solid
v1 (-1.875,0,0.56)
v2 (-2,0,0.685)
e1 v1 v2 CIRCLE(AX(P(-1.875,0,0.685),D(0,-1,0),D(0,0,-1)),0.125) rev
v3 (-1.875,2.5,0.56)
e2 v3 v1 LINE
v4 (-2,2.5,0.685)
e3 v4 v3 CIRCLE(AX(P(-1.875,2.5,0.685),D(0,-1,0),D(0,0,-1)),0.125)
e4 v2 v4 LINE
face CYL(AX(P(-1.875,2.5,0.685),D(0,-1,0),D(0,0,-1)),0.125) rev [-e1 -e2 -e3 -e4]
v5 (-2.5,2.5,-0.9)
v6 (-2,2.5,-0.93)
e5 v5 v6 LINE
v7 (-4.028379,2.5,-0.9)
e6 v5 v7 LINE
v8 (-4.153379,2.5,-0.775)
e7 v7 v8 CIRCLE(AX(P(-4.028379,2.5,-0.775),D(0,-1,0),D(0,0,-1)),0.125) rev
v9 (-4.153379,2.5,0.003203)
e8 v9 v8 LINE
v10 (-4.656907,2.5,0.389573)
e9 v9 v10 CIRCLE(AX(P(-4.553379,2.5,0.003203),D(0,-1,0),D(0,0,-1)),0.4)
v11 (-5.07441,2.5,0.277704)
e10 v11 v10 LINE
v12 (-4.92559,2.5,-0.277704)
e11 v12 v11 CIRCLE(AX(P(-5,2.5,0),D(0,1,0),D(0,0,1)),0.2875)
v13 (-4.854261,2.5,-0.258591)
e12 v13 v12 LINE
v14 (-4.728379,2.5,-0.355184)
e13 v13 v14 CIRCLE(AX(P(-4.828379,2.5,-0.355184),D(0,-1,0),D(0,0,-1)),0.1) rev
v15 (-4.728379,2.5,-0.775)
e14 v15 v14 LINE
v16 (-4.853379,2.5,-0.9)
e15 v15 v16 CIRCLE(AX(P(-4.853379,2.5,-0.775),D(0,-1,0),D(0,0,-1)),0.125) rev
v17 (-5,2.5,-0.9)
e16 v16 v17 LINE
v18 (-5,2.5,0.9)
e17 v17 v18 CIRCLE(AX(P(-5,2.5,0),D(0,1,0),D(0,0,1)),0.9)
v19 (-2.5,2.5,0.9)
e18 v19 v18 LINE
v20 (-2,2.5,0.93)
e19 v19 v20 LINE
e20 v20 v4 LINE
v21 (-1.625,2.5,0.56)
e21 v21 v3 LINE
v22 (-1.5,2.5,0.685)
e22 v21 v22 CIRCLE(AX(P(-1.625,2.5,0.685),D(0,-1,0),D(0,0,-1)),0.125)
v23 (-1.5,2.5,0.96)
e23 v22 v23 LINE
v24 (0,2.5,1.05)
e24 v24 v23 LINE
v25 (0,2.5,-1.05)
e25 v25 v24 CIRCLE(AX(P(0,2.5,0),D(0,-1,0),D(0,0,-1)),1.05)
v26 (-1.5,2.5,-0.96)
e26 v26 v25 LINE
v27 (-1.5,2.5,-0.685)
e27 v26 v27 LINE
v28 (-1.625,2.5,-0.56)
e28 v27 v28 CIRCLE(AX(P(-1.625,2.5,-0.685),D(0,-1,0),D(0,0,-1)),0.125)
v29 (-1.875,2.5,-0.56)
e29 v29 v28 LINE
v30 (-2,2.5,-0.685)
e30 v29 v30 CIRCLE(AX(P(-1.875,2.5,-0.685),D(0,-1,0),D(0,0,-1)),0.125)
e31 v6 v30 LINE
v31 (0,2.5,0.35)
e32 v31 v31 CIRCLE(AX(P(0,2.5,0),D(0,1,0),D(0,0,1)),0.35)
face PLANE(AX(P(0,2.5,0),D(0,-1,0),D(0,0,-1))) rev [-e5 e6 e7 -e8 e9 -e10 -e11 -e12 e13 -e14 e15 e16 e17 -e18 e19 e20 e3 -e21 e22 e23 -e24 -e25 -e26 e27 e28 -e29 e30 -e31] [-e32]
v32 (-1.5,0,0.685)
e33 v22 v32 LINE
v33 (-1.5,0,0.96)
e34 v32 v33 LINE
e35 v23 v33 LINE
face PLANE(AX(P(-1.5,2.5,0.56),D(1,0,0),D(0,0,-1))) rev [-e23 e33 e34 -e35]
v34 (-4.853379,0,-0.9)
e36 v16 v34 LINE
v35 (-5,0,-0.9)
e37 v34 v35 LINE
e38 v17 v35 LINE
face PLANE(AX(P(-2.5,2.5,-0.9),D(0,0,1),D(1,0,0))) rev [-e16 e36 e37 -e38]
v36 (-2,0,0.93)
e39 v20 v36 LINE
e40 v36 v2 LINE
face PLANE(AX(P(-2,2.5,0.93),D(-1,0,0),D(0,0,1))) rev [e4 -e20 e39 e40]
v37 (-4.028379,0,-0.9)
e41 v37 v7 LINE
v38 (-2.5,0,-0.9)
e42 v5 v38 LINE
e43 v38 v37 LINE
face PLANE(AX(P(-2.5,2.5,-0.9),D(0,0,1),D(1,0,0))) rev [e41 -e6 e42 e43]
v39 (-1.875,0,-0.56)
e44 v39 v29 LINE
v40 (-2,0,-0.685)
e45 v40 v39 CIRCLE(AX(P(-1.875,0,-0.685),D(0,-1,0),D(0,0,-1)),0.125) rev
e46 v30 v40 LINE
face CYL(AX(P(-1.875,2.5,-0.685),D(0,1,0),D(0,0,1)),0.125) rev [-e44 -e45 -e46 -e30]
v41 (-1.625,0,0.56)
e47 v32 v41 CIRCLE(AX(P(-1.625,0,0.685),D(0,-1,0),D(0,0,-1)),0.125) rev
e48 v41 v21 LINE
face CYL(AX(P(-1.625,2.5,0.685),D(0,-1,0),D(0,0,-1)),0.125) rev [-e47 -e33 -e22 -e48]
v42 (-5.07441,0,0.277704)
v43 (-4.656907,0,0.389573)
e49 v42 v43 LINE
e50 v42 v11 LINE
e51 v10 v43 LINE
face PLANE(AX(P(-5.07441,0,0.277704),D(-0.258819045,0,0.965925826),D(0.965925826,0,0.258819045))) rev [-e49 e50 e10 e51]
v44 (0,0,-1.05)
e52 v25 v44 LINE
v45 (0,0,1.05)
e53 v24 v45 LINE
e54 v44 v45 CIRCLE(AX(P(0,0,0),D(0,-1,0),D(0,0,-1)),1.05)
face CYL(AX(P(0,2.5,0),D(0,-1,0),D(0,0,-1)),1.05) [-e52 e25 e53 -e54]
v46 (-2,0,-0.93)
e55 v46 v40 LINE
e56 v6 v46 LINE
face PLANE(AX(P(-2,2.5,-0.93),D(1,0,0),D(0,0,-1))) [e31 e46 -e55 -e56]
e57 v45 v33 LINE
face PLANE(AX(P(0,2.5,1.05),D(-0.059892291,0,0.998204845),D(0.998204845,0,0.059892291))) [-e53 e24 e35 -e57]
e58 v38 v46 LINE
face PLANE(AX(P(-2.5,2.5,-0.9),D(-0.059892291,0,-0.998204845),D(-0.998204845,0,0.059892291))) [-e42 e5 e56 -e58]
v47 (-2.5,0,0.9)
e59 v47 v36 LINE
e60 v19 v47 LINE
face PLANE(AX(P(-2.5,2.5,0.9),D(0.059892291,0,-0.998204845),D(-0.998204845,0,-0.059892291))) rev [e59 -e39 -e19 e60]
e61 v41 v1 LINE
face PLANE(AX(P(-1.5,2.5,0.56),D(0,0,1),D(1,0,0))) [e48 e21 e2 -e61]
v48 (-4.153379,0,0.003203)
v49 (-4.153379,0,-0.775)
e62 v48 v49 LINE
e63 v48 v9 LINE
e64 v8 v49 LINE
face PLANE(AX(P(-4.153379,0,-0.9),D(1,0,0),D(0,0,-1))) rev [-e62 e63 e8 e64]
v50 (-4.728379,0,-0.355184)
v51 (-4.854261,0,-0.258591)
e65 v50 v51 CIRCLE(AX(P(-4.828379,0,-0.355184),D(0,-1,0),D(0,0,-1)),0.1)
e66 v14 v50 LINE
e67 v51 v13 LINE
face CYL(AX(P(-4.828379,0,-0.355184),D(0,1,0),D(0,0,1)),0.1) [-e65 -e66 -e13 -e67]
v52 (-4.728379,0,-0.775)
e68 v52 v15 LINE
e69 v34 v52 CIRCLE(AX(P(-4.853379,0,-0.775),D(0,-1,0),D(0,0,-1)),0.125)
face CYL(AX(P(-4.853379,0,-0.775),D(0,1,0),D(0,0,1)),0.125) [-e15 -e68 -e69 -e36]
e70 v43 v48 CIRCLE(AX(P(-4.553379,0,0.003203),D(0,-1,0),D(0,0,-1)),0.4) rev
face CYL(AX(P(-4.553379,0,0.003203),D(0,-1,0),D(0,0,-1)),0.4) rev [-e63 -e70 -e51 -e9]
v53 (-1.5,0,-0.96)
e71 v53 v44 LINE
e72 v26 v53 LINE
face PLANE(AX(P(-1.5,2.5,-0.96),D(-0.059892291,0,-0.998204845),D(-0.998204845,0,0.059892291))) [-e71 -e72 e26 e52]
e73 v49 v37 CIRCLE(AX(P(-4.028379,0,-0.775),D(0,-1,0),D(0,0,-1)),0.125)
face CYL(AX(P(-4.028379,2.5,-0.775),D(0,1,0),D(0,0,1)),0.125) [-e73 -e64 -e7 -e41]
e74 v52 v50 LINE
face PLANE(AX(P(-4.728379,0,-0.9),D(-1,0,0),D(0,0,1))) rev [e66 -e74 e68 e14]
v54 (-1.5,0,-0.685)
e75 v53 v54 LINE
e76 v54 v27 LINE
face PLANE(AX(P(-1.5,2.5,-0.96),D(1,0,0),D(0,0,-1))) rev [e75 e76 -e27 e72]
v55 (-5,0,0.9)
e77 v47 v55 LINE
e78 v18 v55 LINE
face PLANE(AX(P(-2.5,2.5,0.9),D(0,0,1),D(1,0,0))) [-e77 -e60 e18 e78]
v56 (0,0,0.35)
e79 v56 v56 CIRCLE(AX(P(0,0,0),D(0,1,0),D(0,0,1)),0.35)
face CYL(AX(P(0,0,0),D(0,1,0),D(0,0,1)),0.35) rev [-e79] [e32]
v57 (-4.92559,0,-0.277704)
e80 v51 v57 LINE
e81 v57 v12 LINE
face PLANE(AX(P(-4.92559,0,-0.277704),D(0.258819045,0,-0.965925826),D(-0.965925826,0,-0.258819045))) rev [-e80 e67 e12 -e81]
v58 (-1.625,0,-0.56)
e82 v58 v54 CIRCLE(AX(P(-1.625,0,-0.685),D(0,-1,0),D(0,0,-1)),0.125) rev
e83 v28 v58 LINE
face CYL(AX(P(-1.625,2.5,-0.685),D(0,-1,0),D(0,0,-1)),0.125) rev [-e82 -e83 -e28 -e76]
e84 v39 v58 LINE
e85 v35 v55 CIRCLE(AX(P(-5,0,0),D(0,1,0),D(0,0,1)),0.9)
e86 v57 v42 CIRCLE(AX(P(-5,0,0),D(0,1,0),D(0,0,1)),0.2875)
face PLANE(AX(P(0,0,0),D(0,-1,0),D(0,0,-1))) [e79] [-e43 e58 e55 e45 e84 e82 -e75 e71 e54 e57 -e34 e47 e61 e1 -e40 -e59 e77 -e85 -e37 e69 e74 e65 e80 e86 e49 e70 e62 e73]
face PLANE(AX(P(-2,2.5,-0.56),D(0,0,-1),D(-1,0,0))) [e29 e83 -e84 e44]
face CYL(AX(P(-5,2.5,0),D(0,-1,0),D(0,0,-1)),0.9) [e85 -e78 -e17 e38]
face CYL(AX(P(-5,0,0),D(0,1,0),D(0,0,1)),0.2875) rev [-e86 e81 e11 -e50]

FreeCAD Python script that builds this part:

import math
import FreeCAD as App
import Part
import Sketcher
from FreeCAD import Vector
Q = App.Units.Quantity


def edges_at(feature, points):
    """Names of the edges that pass closest to the given points."""
    edges = feature.Shape.Edges
    near = lambda p: min(range(len(edges)), key=lambda i: edges[i].distToShape(Part.Vertex(*p))[0])
    return sorted({f"Edge{near(p) + 1}" for p in points})

doc = App.newDocument("Part")
params = doc.addObject("Spreadsheet::Sheet", "Params")
for row, (alias, value) in enumerate([
    ("sketch1_radius", "0.9 mm"),
    ("sketch1_radius2", "1.05 mm"),
    ("sketch1_width", "2.5 mm"),
    ("sketch1_width2", "0.5 mm"),
    ("sketch1_height", "0.4 mm"),
    ("pad1_length", "2.5 mm"),
    ("sketch2_diameter", "0.7 mm"),
    ("fillet_radius", "0.125 mm"),
    ("fillet2_radius", "0.4 mm"),
    ("fillet3_radius", "0.1 mm"),
], start=1):
    params.set(f"A{row}", alias)
    params.set(f"B{row}", "=" + value)
    params.setAlias(f"B{row}", alias)

body = doc.addObject("PartDesign::Body", "Body")

# Sketch on XZ plane
sketch1 = body.newObject("Sketcher::SketchObject", "Sketch")
sketch1.AttachmentSupport = (doc.getObject("XZ_Plane"), [""])
sketch1.MapMode = "FlatFace"
sketch1.addGeometry(Part.LineSegment(Vector(-2, -0.93, 0), Vector(-2.5, -0.9, 0)), False)
sketch1.addGeometry(Part.LineSegment(Vector(-2.5, -0.9, 0), Vector(-5, -0.9, 0)), False)
sketch1.addGeometry(Part.ArcOfCircle(Part.Circle(Vector(-5, 0, 0), Vector(0, 0, 1), 0.9), math.radians(90), math.radians(270)), False)
sketch1.addGeometry(Part.LineSegment(Vector(-5, 0.9, 0), Vector(-2.5, 0.9, 0)), False)
sketch1.addGeometry(Part.LineSegment(Vector(-2.5, 0.9, 0), Vector(-2, 0.93, 0)), False)
sketch1.addGeometry(Part.LineSegment(Vector(-2, 0.93, 0), Vector(-2, 0.56, 0)), False)
sketch1.addGeometry(Part.LineSegment(Vector(-2, 0.56, 0), Vector(-1.5, 0.56, 0)), False)
sketch1.addGeometry(Part.LineSegment(Vector(-1.5, 0.56, 0), Vector(-1.5, 0.96, 0)), False)
sketch1.addGeometry(Part.LineSegment(Vector(-1.5, 0.96, 0), Vector(0, 1.05, 0)), False)
sketch1.addGeometry(Part.ArcOfCircle(Part.Circle(Vector(0, 0, 0), Vector(0, 0, 1), 1.05), math.radians(-90), math.radians(90)), False)
sketch1.addGeometry(Part.LineSegment(Vector(0, -1.05, 0), Vector(-1.5, -0.96, 0)), False)
sketch1.addGeometry(Part.LineSegment(Vector(-1.5, -0.96, 0), Vector(-1.5, -0.56, 0)), False)
sketch1.addGeometry(Part.LineSegment(Vector(-1.5, -0.56, 0), Vector(-2, -0.56, 0)), False)
sketch1.addGeometry(Part.LineSegment(Vector(-2, -0.56, 0), Vector(-2, -0.93, 0)), False)
sketch1.addConstraint(Sketcher.Constraint("Coincident", 0, 2, 1, 1))
sketch1.addConstraint(Sketcher.Constraint("Tangent", 1, 2, 2, 2))
sketch1.addConstraint(Sketcher.Constraint("Tangent", 2, 1, 3, 1))
sketch1.addConstraint(Sketcher.Constraint("Coincident", 3, 2, 4, 1))
sketch1.addConstraint(Sketcher.Constraint("Coincident", 4, 2, 5, 1))
sketch1.addConstraint(Sketcher.Constraint("Coincident", 5, 2, 6, 1))
sketch1.addConstraint(Sketcher.Constraint("Coincident", 6, 2, 7, 1))
sketch1.addConstraint(Sketcher.Constraint("Coincident", 7, 2, 8, 1))
sketch1.addConstraint(Sketcher.Constraint("Coincident", 8, 2, 9, 2))
sketch1.addConstraint(Sketcher.Constraint("Coincident", 9, 1, 10, 1))
sketch1.addConstraint(Sketcher.Constraint("Coincident", 10, 2, 11, 1))
sketch1.addConstraint(Sketcher.Constraint("Coincident", 11, 2, 12, 1))
sketch1.addConstraint(Sketcher.Constraint("Coincident", 12, 2, 13, 1))
sketch1.addConstraint(Sketcher.Constraint("Coincident", 13, 2, 0, 1))
sketch1.addConstraint(Sketcher.Constraint("Horizontal", 1))
sketch1.addConstraint(Sketcher.Constraint("Horizontal", 3))
sketch1.addConstraint(Sketcher.Constraint("Vertical", 5))
sketch1.addConstraint(Sketcher.Constraint("Horizontal", 6))
sketch1.addConstraint(Sketcher.Constraint("Vertical", 7))
sketch1.addConstraint(Sketcher.Constraint("Vertical", 11))
sketch1.addConstraint(Sketcher.Constraint("Horizontal", 12))
sketch1.addConstraint(Sketcher.Constraint("Vertical", 13))
sketch1.addConstraint(Sketcher.Constraint("Coincident", 9, 3, -1, 1))
sketch1.addConstraint(Sketcher.Constraint("Symmetric", 0, 2, 3, 2, -1))
sketch1.addConstraint(Sketcher.Constraint("Symmetric", 7, 2, 10, 2, -1))
sketch1.addConstraint(Sketcher.Constraint("Symmetric", 5, 2, 12, 2, -1))
sketch1.addConstraint(Sketcher.Constraint("PointOnObject", 8, 2, -2))
sketch1.addConstraint(Sketcher.Constraint("PointOnObject", 9, 1, -2))
sketch1.addConstraint(Sketcher.Constraint("Parallel", 4, 8))
sketch1.addConstraint(Sketcher.Constraint("Parallel", 0, 10))
sketch1.addConstraint(Sketcher.Constraint("Radius", 2, Q("0.9 mm")))
sketch1.addConstraint(Sketcher.Constraint("Radius", 9, Q("1.05 mm")))
sketch1.addConstraint(Sketcher.Constraint("DistanceX", 1, 2, 1, 1, Q("2.5 mm")))
sketch1.addConstraint(Sketcher.Constraint("DistanceX", 6, 1, 6, 2, Q("0.5 mm")))
sketch1.addConstraint(Sketcher.Constraint("DistanceY", 7, 1, 7, 2, Q("0.4 mm")))
sketch1.addConstraint(Sketcher.Constraint("DistanceX", 2, 3, -1, 1, Q("5 mm")))
sketch1.addConstraint(Sketcher.Constraint("DistanceX", 4, 2, -1, 1, Q("2 mm")))
sketch1.addConstraint(Sketcher.Constraint("DistanceY", 5, 2, 5, 1, Q("0.37 mm")))
sketch1.setExpression("Constraints[30]", "Params.sketch1_radius")
sketch1.setExpression("Constraints[31]", "Params.sketch1_radius2")
sketch1.setExpression("Constraints[32]", "Params.sketch1_width")
sketch1.setExpression("Constraints[33]", "Params.sketch1_width2")
sketch1.setExpression("Constraints[34]", "Params.sketch1_height")
pad1 = body.newObject("PartDesign::Pad", "Pad")
pad1.Profile = sketch1
pad1.setExpression("Length", "Params.pad1_length")
pad1.Reversed = True

# Sketch on XZ plane
sketch2 = body.newObject("Sketcher::SketchObject", "Sketch001")
sketch2.AttachmentSupport = (doc.getObject("XZ_Plane"), [""])
sketch2.MapMode = "FlatFace"
sketch2.AttachmentOffset = App.Placement(Vector(0, 0, -2.5), App.Rotation())
sketch2.addGeometry(Part.Circle(Vector(0, 0, 0), Vector(0, 0, 1), 0.35), False)
sketch2.addGeometry(Part.LineSegment(Vector(-4.73, -0.22, 0), Vector(-4.93, -0.28, 0)), False)
sketch2.addGeometry(Part.ArcOfCircle(Part.Circle(Vector(-5, 0, 0), Vector(0, 0, 1), 0.29), math.radians(105), math.radians(285)), False)
sketch2.addGeometry(Part.LineSegment(Vector(-5.07, 0.28, 0), Vector(-4.15, 0.52, 0)), False)
sketch2.addGeometry(Part.LineSegment(Vector(-4.15, 0.52, 0), Vector(-4.15, -0.9, 0)), False)
sketch2.addGeometry(Part.LineSegment(Vector(-4.15, -0.9, 0), Vector(-4.73, -0.9, 0)), False)
sketch2.addGeometry(Part.LineSegment(Vector(-4.73, -0.9, 0), Vector(-4.73, -0.22, 0)), False)
sketch2.addConstraint(Sketcher.Constraint("Tangent", 1, 2, 2, 2))
sketch2.addConstraint(Sketcher.Constraint("Tangent", 2, 1, 3, 1))
sketch2.addConstraint(Sketcher.Constraint("Coincident", 3, 2, 4, 1))
sketch2.addConstraint(Sketcher.Constraint("Coincident", 4, 2, 5, 1))
sketch2.addConstraint(Sketcher.Constraint("Coincident", 5, 2, 6, 1))
sketch2.addConstraint(Sketcher.Constraint("Coincident", 6, 2, 1, 1))
sketch2.addConstraint(Sketcher.Constraint("Vertical", 4))
sketch2.addConstraint(Sketcher.Constraint("Horizontal", 5))
sketch2.addConstraint(Sketcher.Constraint("Vertical", 6))
sketch2.addConstraint(Sketcher.Constraint("Coincident", 0, 3, -1, 1))
sketch2.addConstraint(Sketcher.Constraint("PointOnObject", 2, 3, -1))
sketch2.addConstraint(Sketcher.Constraint("Parallel", 1, 3))
sketch2.addConstraint(Sketcher.Constraint("Diameter", 0, Q("0.7 mm")))
sketch2.addConstraint(Sketcher.Constraint("Angle", 1, Q("-165 deg")))
sketch2.addConstraint(Sketcher.Constraint("DistanceX", 2, 3, -1, 1, Q("5 mm")))
sketch2.addConstraint(Sketcher.Constraint("DistanceY", 4, 2, -1, 1, Q("0.9 mm")))
sketch2.addConstraint(Sketcher.Constraint("Radius", 2, Q("0.2875 mm")))
sketch2.addConstraint(Sketcher.Constraint("DistanceX", 5, 2, 5, 1, Q("0.575 mm")))
sketch2.addConstraint(Sketcher.Constraint("DistanceY", 6, 1, 6, 2, Q("0.675139 mm")))
sketch2.setExpression("Constraints[12]", "Params.sketch2_diameter")
pocket1 = body.newObject("PartDesign::Pocket", "Pocket")
pocket1.Profile = sketch2
pocket1.Type = "ThroughAll"
pocket1.Reversed = True
doc.recompute()

fillet = body.newObject("PartDesign::Fillet", "Fillet")
fillet.Base = (pocket1, edges_at(pocket1, [
    (-2, 1.25, 0.56),
    (-1.5, 1.25, 0.56),
    (-1.5, 1.25, -0.56),
    (-2, 1.25, -0.56),
    (-4.728, 1.25, -0.9),
    (-4.153, 1.25, -0.9),
]))
fillet.setExpression("Radius", "Params.fillet_radius")
doc.recompute()

fillet2 = body.newObject("PartDesign::Fillet", "Fillet001")
fillet2.Base = (fillet, edges_at(fillet, [(-4.153, 1.25, 0.524)]))
fillet2.setExpression("Radius", "Params.fillet2_radius")
doc.recompute()

fillet3 = body.newObject("PartDesign::Fillet", "Fillet002")
fillet3.Base = (fillet2, edges_at(fillet2, [(-4.728, 1.25, -0.225)]))
fillet3.setExpression("Radius", "Params.fillet3_radius")

doc.recompute()
